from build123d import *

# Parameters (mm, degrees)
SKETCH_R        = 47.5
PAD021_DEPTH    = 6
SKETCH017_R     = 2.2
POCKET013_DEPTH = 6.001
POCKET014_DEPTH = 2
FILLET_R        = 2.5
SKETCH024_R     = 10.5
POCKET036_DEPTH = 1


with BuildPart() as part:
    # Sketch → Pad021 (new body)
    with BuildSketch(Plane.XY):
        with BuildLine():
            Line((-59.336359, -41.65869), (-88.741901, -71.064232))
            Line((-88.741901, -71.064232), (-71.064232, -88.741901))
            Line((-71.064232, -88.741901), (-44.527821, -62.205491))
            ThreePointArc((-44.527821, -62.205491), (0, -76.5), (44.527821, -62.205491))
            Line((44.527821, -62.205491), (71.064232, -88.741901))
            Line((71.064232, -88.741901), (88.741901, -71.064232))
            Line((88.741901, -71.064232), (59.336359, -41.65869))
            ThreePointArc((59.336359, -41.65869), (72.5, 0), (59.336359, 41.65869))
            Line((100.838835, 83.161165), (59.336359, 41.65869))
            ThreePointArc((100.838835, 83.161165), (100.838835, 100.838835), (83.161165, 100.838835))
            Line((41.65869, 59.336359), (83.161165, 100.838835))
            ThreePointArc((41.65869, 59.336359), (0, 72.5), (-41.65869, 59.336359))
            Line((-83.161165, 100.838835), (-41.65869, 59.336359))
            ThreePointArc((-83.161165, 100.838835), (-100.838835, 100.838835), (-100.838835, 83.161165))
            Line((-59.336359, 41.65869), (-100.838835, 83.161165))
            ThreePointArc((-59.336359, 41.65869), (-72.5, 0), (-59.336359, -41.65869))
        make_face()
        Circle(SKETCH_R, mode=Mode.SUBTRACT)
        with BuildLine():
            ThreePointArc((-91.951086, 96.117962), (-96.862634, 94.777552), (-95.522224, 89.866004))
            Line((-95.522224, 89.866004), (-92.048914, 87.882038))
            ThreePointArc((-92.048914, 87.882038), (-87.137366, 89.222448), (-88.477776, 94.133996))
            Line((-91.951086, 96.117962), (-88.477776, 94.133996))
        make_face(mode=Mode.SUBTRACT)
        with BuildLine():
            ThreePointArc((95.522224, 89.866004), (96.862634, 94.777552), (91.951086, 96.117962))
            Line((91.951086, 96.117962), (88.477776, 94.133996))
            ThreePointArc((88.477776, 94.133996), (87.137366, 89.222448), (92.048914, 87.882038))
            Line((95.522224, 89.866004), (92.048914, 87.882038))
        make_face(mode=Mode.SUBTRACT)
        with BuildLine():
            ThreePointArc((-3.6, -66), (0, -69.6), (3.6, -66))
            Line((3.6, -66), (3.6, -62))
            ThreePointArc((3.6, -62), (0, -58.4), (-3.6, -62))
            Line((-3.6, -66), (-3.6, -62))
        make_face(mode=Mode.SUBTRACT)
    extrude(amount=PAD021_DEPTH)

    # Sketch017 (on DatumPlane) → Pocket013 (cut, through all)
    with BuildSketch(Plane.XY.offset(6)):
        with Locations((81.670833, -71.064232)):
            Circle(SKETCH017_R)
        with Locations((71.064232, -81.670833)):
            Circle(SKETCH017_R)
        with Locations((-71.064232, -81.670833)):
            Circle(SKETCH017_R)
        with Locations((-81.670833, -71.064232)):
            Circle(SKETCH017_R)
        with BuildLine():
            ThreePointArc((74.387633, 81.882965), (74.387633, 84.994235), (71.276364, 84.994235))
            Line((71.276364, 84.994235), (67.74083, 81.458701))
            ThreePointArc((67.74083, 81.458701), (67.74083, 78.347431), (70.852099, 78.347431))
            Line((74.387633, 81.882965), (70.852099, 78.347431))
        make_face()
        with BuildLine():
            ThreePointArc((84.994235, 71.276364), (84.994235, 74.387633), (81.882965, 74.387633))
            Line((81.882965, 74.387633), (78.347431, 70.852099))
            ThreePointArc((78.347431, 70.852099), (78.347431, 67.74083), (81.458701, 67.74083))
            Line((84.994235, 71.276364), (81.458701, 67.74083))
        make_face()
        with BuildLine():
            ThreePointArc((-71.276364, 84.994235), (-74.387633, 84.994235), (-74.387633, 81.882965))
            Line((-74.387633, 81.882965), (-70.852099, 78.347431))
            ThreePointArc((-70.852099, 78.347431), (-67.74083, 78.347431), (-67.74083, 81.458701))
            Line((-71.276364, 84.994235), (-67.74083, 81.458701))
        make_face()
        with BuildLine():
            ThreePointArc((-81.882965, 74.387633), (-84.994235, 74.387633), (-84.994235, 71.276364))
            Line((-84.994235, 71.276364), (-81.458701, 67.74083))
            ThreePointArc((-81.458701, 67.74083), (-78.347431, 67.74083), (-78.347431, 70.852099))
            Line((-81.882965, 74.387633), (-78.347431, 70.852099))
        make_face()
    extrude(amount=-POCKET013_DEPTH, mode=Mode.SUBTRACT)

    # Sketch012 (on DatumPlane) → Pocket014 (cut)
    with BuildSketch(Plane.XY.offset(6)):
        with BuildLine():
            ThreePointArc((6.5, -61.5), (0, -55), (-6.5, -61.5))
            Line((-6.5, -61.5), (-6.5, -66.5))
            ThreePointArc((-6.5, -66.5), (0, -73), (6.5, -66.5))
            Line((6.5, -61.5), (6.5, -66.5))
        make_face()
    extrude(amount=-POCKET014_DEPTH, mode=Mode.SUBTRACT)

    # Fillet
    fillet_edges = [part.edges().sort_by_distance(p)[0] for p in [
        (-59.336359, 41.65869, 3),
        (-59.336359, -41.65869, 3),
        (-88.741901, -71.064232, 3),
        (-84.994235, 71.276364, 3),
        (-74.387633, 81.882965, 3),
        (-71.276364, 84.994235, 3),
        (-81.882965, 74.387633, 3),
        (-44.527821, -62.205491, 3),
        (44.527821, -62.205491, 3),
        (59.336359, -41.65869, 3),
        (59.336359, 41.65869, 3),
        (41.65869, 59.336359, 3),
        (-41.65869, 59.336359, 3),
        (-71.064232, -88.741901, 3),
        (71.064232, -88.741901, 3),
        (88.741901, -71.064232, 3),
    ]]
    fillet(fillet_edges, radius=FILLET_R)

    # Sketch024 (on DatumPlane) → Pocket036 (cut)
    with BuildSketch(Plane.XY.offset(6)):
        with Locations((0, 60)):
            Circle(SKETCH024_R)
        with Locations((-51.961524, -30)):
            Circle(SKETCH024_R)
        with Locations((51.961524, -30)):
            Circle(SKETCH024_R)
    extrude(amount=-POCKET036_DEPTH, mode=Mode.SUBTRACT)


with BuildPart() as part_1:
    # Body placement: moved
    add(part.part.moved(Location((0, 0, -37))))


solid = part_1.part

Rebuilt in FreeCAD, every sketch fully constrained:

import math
import FreeCAD as App
import Part
import Sketcher
from FreeCAD import Vector
Q = App.Units.Quantity


def edges_at(feature, points):
    """Names of the edges that pass closest to the given points."""
    edges = feature.Shape.Edges
    near = lambda p: min(range(len(edges)), key=lambda i: edges[i].distToShape(Part.Vertex(*p))[0])
    return sorted({f"Edge{near(p) + 1}" for p in points})

doc = App.newDocument("Part")
params = doc.addObject("Spreadsheet::Sheet", "Params")
for row, (alias, value) in enumerate([
    ("sketch1_diameter", "95 mm"),
    ("sketch1_radius", "76.499998 mm"),
    ("sketch1_radius2", "72.499998 mm"),
    ("sketch1_radius3", "12.5 mm"),
    ("sketch1_radius4", "72.499998 mm"),
    ("pad1_length", "6 mm"),
    ("sketch2_diameter", "4.4 mm"),
    ("sketch2_length", "5 mm"),
    ("sketch3_radius", "6.5 mm"),
    ("sketch3_height", "5 mm"),
    ("pocket2_length", "2 mm"),
    ("fillet_radius", "2.5 mm"),
    ("sketch4_diameter", "21 mm"),
    ("pocket3_length", "1 mm"),
], start=1):
    params.set(f"A{row}", alias)
    params.set(f"B{row}", "=" + value)
    params.setAlias(f"B{row}", alias)

body = doc.addObject("PartDesign::Body", "Body")

# Sketch on XY plane
sketch1 = body.newObject("Sketcher::SketchObject", "Sketch")
sketch1.AttachmentSupport = (doc.getObject("XY_Plane"), [""])
sketch1.MapMode = "FlatFace"
sketch1.addGeometry([
    Part.LineSegment(Vector(-59.336359, -41.65869, 0), Vector(-88.741901, -71.064232, 0)),  # 0
    Part.LineSegment(Vector(-88.741901, -71.064232, 0), Vector(-71.064232, -88.741901, 0)),  # 1
    Part.LineSegment(Vector(-71.064232, -88.741901, 0), Vector(-44.527821, -62.205491, 0)),  # 2
    Part.ArcOfCircle(Part.Circle(Vector(0, -0.000002, 0), Vector(0, 0, 1), 76.499998), math.radians(-125.595777), math.radians(-54.404223)),  # 3
    Part.LineSegment(Vector(44.527821, -62.205491, 0), Vector(71.064232, -88.741901, 0)),  # 4
    Part.LineSegment(Vector(71.064232, -88.741901, 0), Vector(88.741901, -71.064232, 0)),  # 5
    Part.LineSegment(Vector(88.741901, -71.064232, 0), Vector(59.336359, -41.65869, 0)),  # 6
    Part.ArcOfCircle(Part.Circle(Vector(0.000002, 0, 0), Vector(0, 0, 1), 72.499998), math.radians(-35.071809), math.radians(35.071809)),  # 7
    Part.LineSegment(Vector(59.336359, 41.65869, 0), Vector(100.838835, 83.161165, 0)),  # 8
    Part.ArcOfCircle(Part.Circle(Vector(92, 92, 0), Vector(0, 0, 1), 12.5), math.radians(-45), math.radians(135)),  # 9
    Part.LineSegment(Vector(83.161165, 100.838835, 0), Vector(41.65869, 59.336359, 0)),  # 10
    Part.ArcOfCircle(Part.Circle(Vector(0, 0.000002, 0), Vector(0, 0, 1), 72.499998), math.radians(54.928191), math.radians(125.071809)),  # 11
    Part.LineSegment(Vector(-41.65869, 59.336359, 0), Vector(-83.161165, 100.838835, 0)),  # 12
    Part.ArcOfCircle(Part.Circle(Vector(-92, 92, 0), Vector(0, 0, 1), 12.5), math.radians(45), math.radians(225)),  # 13
    Part.LineSegment(Vector(-100.838835, 83.161165, 0), Vector(-59.336359, 41.65869, 0)),  # 14
    Part.ArcOfCircle(Part.Circle(Vector(-0.000002, 0, 0), Vector(0, 0, 1), 72.499998), math.radians(144.928191), math.radians(215.071809)),  # 15
    Part.ArcOfCircle(Part.Circle(Vector(0, -66, 0), Vector(0, 0, 1), 3.6), math.radians(180), math.radians(360)),  # 16
    Part.LineSegment(Vector(-3.6, -66, 0), Vector(-3.6, -62, 0)),  # 17
    Part.ArcOfCircle(Part.Circle(Vector(0, -62, 0), Vector(0, 0, 1), 3.6), math.radians(0), math.radians(180)),  # 18
    Part.LineSegment(Vector(3.6, -62, 0), Vector(3.6, -66, 0)),  # 19
    Part.Circle(Vector(0, 0, 0), Vector(0, 0, 1), 47.5),  # 20
    Part.ArcOfCircle(Part.Circle(Vector(-93.736655, 92.991983, 0), Vector(0, 0, 1), 3.6), math.radians(60.264857), math.radians(240.264857)),  # 21
    Part.LineSegment(Vector(-91.951086, 96.117962, 0), Vector(-88.477776, 94.133996, 0)),  # 22
    Part.ArcOfCircle(Part.Circle(Vector(-90.263345, 91.008017, 0), Vector(0, 0, 1), 3.6), math.radians(-119.735143), math.radians(60.264857)),  # 23
    Part.LineSegment(Vector(-92.048914, 87.882038, 0), Vector(-95.522224, 89.866004, 0)),  # 24
    Part.ArcOfCircle(Part.Circle(Vector(93.736655, 92.991983, 0), Vector(0, 0, 1), 3.6), math.radians(-60.264857), math.radians(119.735143)),  # 25
    Part.LineSegment(Vector(95.522224, 89.866004, 0), Vector(92.048914, 87.882038, 0)),  # 26
    Part.ArcOfCircle(Part.Circle(Vector(90.263345, 91.008017, 0), Vector(0, 0, 1), 3.6), math.radians(119.735143), math.radians(299.735143)),  # 27
    Part.LineSegment(Vector(88.477776, 94.133996, 0), Vector(91.951086, 96.117962, 0)),  # 28
], False)
sketch1.addConstraint([
    Sketcher.Constraint("Coincident", 0, 2, 1, 1),
    Sketcher.Constraint("Coincident", 1, 2, 2, 1),
    Sketcher.Constraint("Coincident", 2, 2, 3, 1),
    Sketcher.Constraint("Coincident", 3, 2, 4, 1),
    Sketcher.Constraint("Coincident", 4, 2, 5, 1),
    Sketcher.Constraint("Coincident", 5, 2, 6, 1),
    Sketcher.Constraint("Coincident", 6, 2, 7, 1),
    Sketcher.Constraint("Coincident", 7, 2, 8, 1),
    Sketcher.Constraint("Coincident", 8, 2, 9, 1),
    Sketcher.Constraint("Coincident", 9, 2, 10, 1),
    Sketcher.Constraint("Coincident", 10, 2, 11, 1),
    Sketcher.Constraint("Coincident", 11, 2, 12, 1),
    Sketcher.Constraint("Coincident", 12, 2, 13, 1),
    Sketcher.Constraint("Coincident", 13, 2, 14, 1),
    Sketcher.Constraint("Coincident", 14, 2, 15, 1),
    Sketcher.Constraint("Coincident", 15, 2, 0, 1),
    Sketcher.Constraint("Coincident", 16, 1, 17, 1),
    Sketcher.Constraint("Coincident", 17, 2, 18, 2),
    Sketcher.Constraint("Coincident", 18, 1, 19, 1),
    Sketcher.Constraint("Coincident", 19, 2, 16, 2),
    Sketcher.Constraint("Coincident", 21, 1, 22, 1),
    Sketcher.Constraint("Coincident", 22, 2, 23, 2),
    Sketcher.Constraint("Coincident", 23, 1, 24, 1),
    Sketcher.Constraint("Coincident", 24, 2, 21, 2),
    Sketcher.Constraint("Coincident", 25, 1, 26, 1),
    Sketcher.Constraint("Coincident", 26, 2, 27, 2),
    Sketcher.Constraint("Coincident", 27, 1, 28, 1),
    Sketcher.Constraint("Coincident", 28, 2, 25, 2),
    Sketcher.Constraint("Vertical", 17),
    Sketcher.Constraint("Vertical", 19),
    Sketcher.Constraint("Coincident", 3, 3, -1, 1),
    Sketcher.Constraint("Coincident", 7, 3, -1, 1),
    Sketcher.Constraint("Coincident", 11, 3, -1, 1),
    Sketcher.Constraint("Coincident", 15, 3, -1, 1),
    Sketcher.Constraint("Coincident", 20, 3, -1, 1),
    Sketcher.Constraint("PointOnObject", 16, 3, -2),
    Sketcher.Constraint("Diameter", 20, Q("95 mm")),
    Sketcher.Constraint("Radius", 3, Q("76.499998 mm")),
    Sketcher.Constraint("Radius", 7, Q("72.499998 mm")),
    Sketcher.Constraint("Radius", 9, Q("12.5 mm")),
    Sketcher.Constraint("Radius", 11, Q("72.499998 mm")),
    Sketcher.Constraint("Radius", 13, Q("12.5 mm")),
    Sketcher.Constraint("Radius", 15, Q("72.499998 mm")),
    Sketcher.Constraint("Radius", 16, Q("3.6 mm")),
    Sketcher.Constraint("Radius", 21, Q("3.6 mm")),
    Sketcher.Constraint("Radius", 23, Q("3.6 mm")),
    Sketcher.Constraint("Radius", 25, Q("3.6 mm")),
    Sketcher.Constraint("Radius", 27, Q("3.6 mm")),
    Sketcher.Constraint("DistanceY", 17, 1, 17, 2, Q("4 mm")),
    Sketcher.Constraint("DistanceY", 19, 2, 19, 1, Q("4 mm")),
    Sketcher.Constraint("Distance", 1, Q("24.999999 mm")),
    Sketcher.Constraint("Distance", 5, Q("24.999999 mm")),
    Sketcher.Constraint("Distance", 22, Q("4 mm")),
    Sketcher.Constraint("Distance", 24, Q("4 mm")),
    Sketcher.Constraint("Distance", 26, Q("4 mm")),
    Sketcher.Constraint("Distance", 28, Q("4 mm")),
    Sketcher.Constraint("DistanceX", -1, 1, 9, 3, Q("92 mm")),
    Sketcher.Constraint("DistanceY", -1, 1, 9, 3, Q("92 mm")),
    Sketcher.Constraint("DistanceX", 13, 3, -1, 1, Q("92 mm")),
    Sketcher.Constraint("DistanceY", -1, 1, 13, 3, Q("92 mm")),
    Sketcher.Constraint("DistanceY", 16, 3, -1, 1, Q("66 mm")),
    Sketcher.Constraint("DistanceY", 18, 3, -1, 1, Q("62 mm")),
    Sketcher.Constraint("DistanceY", 16, 1, -1, 1, Q("66 mm")),
    Sketcher.Constraint("DistanceY", 18, 1, -1, 1, Q("62 mm")),
    Sketcher.Constraint("DistanceX", 0, 2, -1, 1, Q("88.741901 mm")),
    Sketcher.Constraint("DistanceY", 1, 2, -1, 1, Q("88.741901 mm")),
    Sketcher.Constraint("DistanceY", 4, 2, -1, 1, Q("88.741901 mm")),
    Sketcher.Constraint("DistanceX", -1, 1, 5, 2, Q("88.741901 mm")),
    Sketcher.Constraint("DistanceY", 3, 2, 6, 2, Q("20.546801 mm")),
    Sketcher.Constraint("DistanceY", 2, 2, 15, 2, Q("20.546801 mm")),
    Sketcher.Constraint("Distance", 2, Q("37.528152 mm")),
    Sketcher.Constraint("Distance", 4, Q("37.528152 mm")),
    Sketcher.Constraint("DistanceX", 2, 2, -1, 1, Q("44.527821 mm")),
    Sketcher.Constraint("DistanceX", -1, 1, 3, 2, Q("44.527821 mm")),
    Sketcher.Constraint("DistanceX", -1, 1, 7, 2, Q("59.336359 mm")),
    Sketcher.Constraint("DistanceX", -1, 1, 10, 2, Q("41.65869 mm")),
    Sketcher.Constraint("DistanceX", 11, 2, -1, 1, Q("41.65869 mm")),
    Sketcher.Constraint("DistanceX", 14, 2, -1, 1, Q("59.336359 mm")),
    Sketcher.Constraint("DistanceY", -1, 1, 21, 1, Q("96.117962 mm")),
    Sketcher.Constraint("DistanceY", -1, 1, 23, 1, Q("87.882038 mm")),
    Sketcher.Constraint("DistanceY", 11, 3, 21, 3, Q("92.991981 mm")),
    Sketcher.Constraint("DistanceX", 21, 3, 23, 3, Q("3.47331 mm")),
    Sketcher.Constraint("DistanceY", 11, 3, 25, 3, Q("92.991981 mm")),
    Sketcher.Constraint("DistanceX", 27, 3, 25, 3, Q("3.47331 mm")),
    Sketcher.Constraint("DistanceX", 25, 3, 8, 2, Q("7.10218 mm")),
    Sketcher.Constraint("DistanceY", 8, 2, 25, 3, Q("9.830818 mm")),
    Sketcher.Constraint("DistanceY", 8, 2, 27, 3, Q("7.846852 mm")),
    Sketcher.Constraint("DistanceX", 9, 2, 27, 3, Q("7.10218 mm")),
    Sketcher.Constraint("DistanceX", 23, 3, 12, 2, Q("7.10218 mm")),
    Sketcher.Constraint("DistanceY", 23, 3, 12, 2, Q("9.830818 mm")),
    Sketcher.Constraint("DistanceY", 21, 3, 12, 2, Q("7.846852 mm")),
    Sketcher.Constraint("DistanceX", 13, 2, 21, 3, Q("7.10218 mm")),
    Sketcher.Constraint("DistanceX", 25, 3, 25, 1, Q("1.785569 mm")),
    Sketcher.Constraint("DistanceX", 27, 1, 27, 3, Q("1.785569 mm")),
])
sketch1.setExpression("Constraints[36]", "Params.sketch1_diameter")
sketch1.setExpression("Constraints[37]", "Params.sketch1_radius")
sketch1.setExpression("Constraints[38]", "Params.sketch1_radius2")
sketch1.setExpression("Constraints[39]", "Params.sketch1_radius3")
sketch1.setExpression("Constraints[40]", "Params.sketch1_radius4")
pad1 = body.newObject("PartDesign::Pad", "Pad")
pad1.Profile = sketch1
pad1.setExpression("Length", "Params.pad1_length")

# Sketch on XY plane
sketch2 = body.newObject("Sketcher::SketchObject", "Sketch001")
sketch2.AttachmentSupport = (doc.getObject("XY_Plane"), [""])
sketch2.MapMode = "FlatFace"
sketch2.AttachmentOffset = App.Placement(Vector(0, 0, 6), App.Rotation())
sketch2.addGeometry([
    Part.Circle(Vector(81.7, -71.1, 0), Vector(0, 0, 1), 2.2),  # 0
    Part.Circle(Vector(71.1, -81.7, 0), Vector(0, 0, 1), 2.2),  # 1
    Part.Circle(Vector(-71.1, -81.7, 0), Vector(0, 0, 1), 2.2),  # 2
    Part.Circle(Vector(-81.7, -71.1, 0), Vector(0, 0, 1), 2.2),  # 3
    Part.ArcOfCircle(Part.Circle(Vector(72.8, 83.4, 0), Vector(0, 0, 1), 2.2), math.radians(-45), math.radians(135)),  # 4
    Part.LineSegment(Vector(71.3, 85, 0), Vector(67.7, 81.5, 0)),  # 5
    Part.ArcOfCircle(Part.Circle(Vector(69.3, 79.9, 0), Vector(0, 0, 1), 2.2), math.radians(135), math.radians(315)),  # 6
    Part.LineSegment(Vector(70.9, 78.3, 0), Vector(74.4, 81.9, 0)),  # 7
    Part.ArcOfCircle(Part.Circle(Vector(83.4, 72.8, 0), Vector(0, 0, 1), 2.2), math.radians(-45), math.radians(135)),  # 8
    Part.LineSegment(Vector(81.9, 74.4, 0), Vector(78.3, 70.9, 0)),  # 9
    Part.ArcOfCircle(Part.Circle(Vector(79.9, 69.3, 0), Vector(0, 0, 1), 2.2), math.radians(135), math.radians(315)),  # 10
    Part.LineSegment(Vector(81.5, 67.7, 0), Vector(85, 71.3, 0)),  # 11
    Part.ArcOfCircle(Part.Circle(Vector(-72.8, 83.4, 0), Vector(0, 0, 1), 2.2), math.radians(45), math.radians(225)),  # 12
    Part.LineSegment(Vector(-74.4, 81.9, 0), Vector(-70.9, 78.3, 0)),  # 13
    Part.ArcOfCircle(Part.Circle(Vector(-69.3, 79.9, 0), Vector(0, 0, 1), 2.2), math.radians(-135), math.radians(45)),  # 14
    Part.LineSegment(Vector(-67.7, 81.5, 0), Vector(-71.3, 85, 0)),  # 15
    Part.ArcOfCircle(Part.Circle(Vector(-83.4, 72.8, 0), Vector(0, 0, 1), 2.2), math.radians(45), math.radians(225)),  # 16
    Part.LineSegment(Vector(-85, 71.3, 0), Vector(-81.5, 67.7, 0)),  # 17
    Part.ArcOfCircle(Part.Circle(Vector(-79.9, 69.3, 0), Vector(0, 0, 1), 2.2), math.radians(-135), math.radians(45)),  # 18
    Part.LineSegment(Vector(-78.3, 70.9, 0), Vector(-81.9, 74.4, 0)),  # 19
], False)
sketch2.addConstraint([
    Sketcher.Constraint("Tangent", 4, 2, 5, 1),
    Sketcher.Constraint("Tangent", 5, 2, 6, 1),
    Sketcher.Constraint("Tangent", 6, 2, 7, 1),
    Sketcher.Constraint("Tangent", 7, 2, 4, 1),
    Sketcher.Constraint("Tangent", 8, 2, 9, 1),
    Sketcher.Constraint("Tangent", 9, 2, 10, 1),
    Sketcher.Constraint("Tangent", 10, 2, 11, 1),
    Sketcher.Constraint("Tangent", 11, 2, 8, 1),
    Sketcher.Constraint("Tangent", 12, 2, 13, 1),
    Sketcher.Constraint("Tangent", 13, 2, 14, 1),
    Sketcher.Constraint("Tangent", 14, 2, 15, 1),
    Sketcher.Constraint("Tangent", 15, 2, 12, 1),
    Sketcher.Constraint("Tangent", 16, 2, 17, 1),
    Sketcher.Constraint("Tangent", 17, 2, 18, 1),
    Sketcher.Constraint("Tangent", 18, 2, 19, 1),
    Sketcher.Constraint("Tangent", 19, 2, 16, 1),
    Sketcher.Constraint("Equal", 0, 1),
    Sketcher.Constraint("Equal", 1, 2),
    Sketcher.Constraint("Equal", 2, 3),
    Sketcher.Constraint("Equal", 3, 4),
    Sketcher.Constraint("Equal", 4, 6),
    Sketcher.Constraint("Equal", 6, 8),
    Sketcher.Constraint("Equal", 8, 10),
    Sketcher.Constraint("Equal", 10, 12),
    Sketcher.Constraint("Equal", 12, 14),
    Sketcher.Constraint("Equal", 14, 16),
    Sketcher.Constraint("Equal", 16, 18),
    Sketcher.Constraint("Symmetric", 1, 3, 2, 3, -2),
    Sketcher.Constraint("Symmetric", 0, 3, 3, 3, -2),
    Sketcher.Constraint("Symmetric", 4, 3, 12, 3, -2),
    Sketcher.Constraint("Symmetric", 6, 3, 14, 3, -2),
    Sketcher.Constraint("Symmetric", 8, 3, 16, 3, -2),
    Sketcher.Constraint("Symmetric", 10, 3, 18, 3, -2),
    Sketcher.Constraint("Parallel", 7, 9),
    Sketcher.Constraint("Perpendicular", 11, 13),
    Sketcher.Constraint("Equal", 7, 9),
    Sketcher.Constraint("Diameter", 0, Q("4.4 mm")),
    Sketcher.Constraint("Distance", 5, Q("5 mm")),
    Sketcher.Constraint("DistanceX", -1, 1, 4, 3, Q("72.831998 mm")),
    Sketcher.Constraint("DistanceY", -1, 1, 8, 3, Q("72.831998 mm")),
    Sketcher.Constraint("DistanceY", -1, 1, 4, 3, Q("83.4386 mm")),
    Sketcher.Constraint("DistanceX", -1, 1, 8, 3, Q("83.4386 mm")),
    Sketcher.Constraint("DistanceX", 1, 3, 0, 3, Q("10.606601 mm")),
    Sketcher.Constraint("DistanceY", 1, 3, 0, 3, Q("10.606601 mm")),
    Sketcher.Constraint("DistanceY", 0, 3, 6, 3, Q("150.967298 mm")),
    Sketcher.Constraint("DistanceX", 3, 3, 4, 3, Q("154.502832 mm")),
])
sketch2.setExpression("Constraints[36]", "Params.sketch2_diameter")
sketch2.setExpression("Constraints[37]", "Params.sketch2_length")
pocket1 = body.newObject("PartDesign::Pocket", "Pocket")
pocket1.Profile = sketch2
pocket1.Type = "ThroughAll"

# Sketch on XY plane
sketch3 = body.newObject("Sketcher::SketchObject", "Sketch002")
sketch3.AttachmentSupport = (doc.getObject("XY_Plane"), [""])
sketch3.MapMode = "FlatFace"
sketch3.AttachmentOffset = App.Placement(Vector(0, 0, 6), App.Rotation())
sketch3.addGeometry([
    Part.ArcOfCircle(Part.Circle(Vector(0, -62, 0), Vector(0, 0, 1), 6), math.radians(0), math.radians(180)),
    Part.LineSegment(Vector(-6, -62, 0), Vector(-6, -66, 0)),
    Part.ArcOfCircle(Part.Circle(Vector(0, -66, 0), Vector(0, 0, 1), 6), math.radians(180), math.radians(360)),
    Part.LineSegment(Vector(6, -66, 0), Vector(6, -62, 0)),
], False)
sketch3.addConstraint([
    Sketcher.Constraint("Tangent", 0, 2, 1, 1),
    Sketcher.Constraint("Tangent", 1, 2, 2, 1),
    Sketcher.Constraint("Tangent", 2, 2, 3, 1),
    Sketcher.Constraint("Tangent", 3, 2, 0, 1),
    Sketcher.Constraint("Vertical", 1),
    Sketcher.Constraint("Vertical", 3),
    Sketcher.Constraint("PointOnObject", 0, 3, -2),
    Sketcher.Constraint("Radius", 0, Q("6.5 mm")),
    Sketcher.Constraint("DistanceY", 1, 2, 1, 1, Q("5 mm")),
    Sketcher.Constraint("DistanceY", 0, 3, -1, 1, Q("61.5 mm")),
])
sketch3.setExpression("Constraints[7]", "Params.sketch3_radius")
sketch3.setExpression("Constraints[8]", "Params.sketch3_height")
pocket2 = body.newObject("PartDesign::Pocket", "Pocket001")
pocket2.Profile = sketch3
pocket2.setExpression("Length", "Params.pocket2_length")
doc.recompute()

fillet = body.newObject("PartDesign::Fillet", "Fillet")
fillet.Base = (pocket2, edges_at(pocket2, [
    (-59.336, 41.659, 3),
    (-59.336, -41.659, 3),
    (-88.742, -71.064, 3),
    (-84.994, 71.276, 3),
    (-74.388, 81.883, 3),
    (-71.276, 84.994, 3),
    (-81.883, 74.388, 3),
    (-44.528, -62.205, 3),
    (44.528, -62.205, 3),
    (59.336, -41.659, 3),
    (59.336, 41.659, 3),
    (41.659, 59.336, 3),
    (-41.659, 59.336, 3),
    (-71.064, -88.742, 3),
    (71.064, -88.742, 3),
    (88.742, -71.064, 3),
]))
fillet.setExpression("Radius", "Params.fillet_radius")

# Sketch on XY plane
sketch4 = body.newObject("Sketcher::SketchObject", "Sketch003")
sketch4.AttachmentSupport = (doc.getObject("XY_Plane"), [""])
sketch4.MapMode = "FlatFace"
sketch4.AttachmentOffset = App.Placement(Vector(0, 0, 6), App.Rotation())
sketch4.addGeometry([
    Part.Circle(Vector(0, 60, 0), Vector(0, 0, 1), 10),
    Part.Circle(Vector(-52, -30, 0), Vector(0, 0, 1), 10),
    Part.Circle(Vector(52, -30, 0), Vector(0, 0, 1), 10),
], False)
sketch4.addConstraint([
    Sketcher.Constraint("Equal", 0, 1),
    Sketcher.Constraint("Equal", 1, 2),
    Sketcher.Constraint("Symmetric", 1, 3, 2, 3, -2),
    Sketcher.Constraint("PointOnObject", 0, 3, -2),
    Sketcher.Constraint("Diameter", 0, Q("21 mm")),
    Sketcher.Constraint("DistanceY", -1, 1, 0, 3, Q("60 mm")),
    Sketcher.Constraint("DistanceY", 1, 3, -1, 1, Q("30 mm")),
    Sketcher.Constraint("DistanceX", 1, 3, -1, 1, Q("51.961524 mm")),
])
sketch4.setExpression("Constraints[4]", "Params.sketch4_diameter")
pocket3 = body.newObject("PartDesign::Pocket", "Pocket002")
pocket3.Profile = sketch4
pocket3.setExpression("Length", "Params.pocket3_length")
body2 = doc.addObject("PartDesign::Body", "Body001")
doc.recompute()

body.Placement = App.Placement(Vector(0, 0, -37), App.Rotation(Vector(0, 0, 1), 0))
boolean = body2.newObject("PartDesign::Boolean", "Boolean")
boolean.Type = "Fuse"
boolean.addObjects([body])

doc.recompute()
